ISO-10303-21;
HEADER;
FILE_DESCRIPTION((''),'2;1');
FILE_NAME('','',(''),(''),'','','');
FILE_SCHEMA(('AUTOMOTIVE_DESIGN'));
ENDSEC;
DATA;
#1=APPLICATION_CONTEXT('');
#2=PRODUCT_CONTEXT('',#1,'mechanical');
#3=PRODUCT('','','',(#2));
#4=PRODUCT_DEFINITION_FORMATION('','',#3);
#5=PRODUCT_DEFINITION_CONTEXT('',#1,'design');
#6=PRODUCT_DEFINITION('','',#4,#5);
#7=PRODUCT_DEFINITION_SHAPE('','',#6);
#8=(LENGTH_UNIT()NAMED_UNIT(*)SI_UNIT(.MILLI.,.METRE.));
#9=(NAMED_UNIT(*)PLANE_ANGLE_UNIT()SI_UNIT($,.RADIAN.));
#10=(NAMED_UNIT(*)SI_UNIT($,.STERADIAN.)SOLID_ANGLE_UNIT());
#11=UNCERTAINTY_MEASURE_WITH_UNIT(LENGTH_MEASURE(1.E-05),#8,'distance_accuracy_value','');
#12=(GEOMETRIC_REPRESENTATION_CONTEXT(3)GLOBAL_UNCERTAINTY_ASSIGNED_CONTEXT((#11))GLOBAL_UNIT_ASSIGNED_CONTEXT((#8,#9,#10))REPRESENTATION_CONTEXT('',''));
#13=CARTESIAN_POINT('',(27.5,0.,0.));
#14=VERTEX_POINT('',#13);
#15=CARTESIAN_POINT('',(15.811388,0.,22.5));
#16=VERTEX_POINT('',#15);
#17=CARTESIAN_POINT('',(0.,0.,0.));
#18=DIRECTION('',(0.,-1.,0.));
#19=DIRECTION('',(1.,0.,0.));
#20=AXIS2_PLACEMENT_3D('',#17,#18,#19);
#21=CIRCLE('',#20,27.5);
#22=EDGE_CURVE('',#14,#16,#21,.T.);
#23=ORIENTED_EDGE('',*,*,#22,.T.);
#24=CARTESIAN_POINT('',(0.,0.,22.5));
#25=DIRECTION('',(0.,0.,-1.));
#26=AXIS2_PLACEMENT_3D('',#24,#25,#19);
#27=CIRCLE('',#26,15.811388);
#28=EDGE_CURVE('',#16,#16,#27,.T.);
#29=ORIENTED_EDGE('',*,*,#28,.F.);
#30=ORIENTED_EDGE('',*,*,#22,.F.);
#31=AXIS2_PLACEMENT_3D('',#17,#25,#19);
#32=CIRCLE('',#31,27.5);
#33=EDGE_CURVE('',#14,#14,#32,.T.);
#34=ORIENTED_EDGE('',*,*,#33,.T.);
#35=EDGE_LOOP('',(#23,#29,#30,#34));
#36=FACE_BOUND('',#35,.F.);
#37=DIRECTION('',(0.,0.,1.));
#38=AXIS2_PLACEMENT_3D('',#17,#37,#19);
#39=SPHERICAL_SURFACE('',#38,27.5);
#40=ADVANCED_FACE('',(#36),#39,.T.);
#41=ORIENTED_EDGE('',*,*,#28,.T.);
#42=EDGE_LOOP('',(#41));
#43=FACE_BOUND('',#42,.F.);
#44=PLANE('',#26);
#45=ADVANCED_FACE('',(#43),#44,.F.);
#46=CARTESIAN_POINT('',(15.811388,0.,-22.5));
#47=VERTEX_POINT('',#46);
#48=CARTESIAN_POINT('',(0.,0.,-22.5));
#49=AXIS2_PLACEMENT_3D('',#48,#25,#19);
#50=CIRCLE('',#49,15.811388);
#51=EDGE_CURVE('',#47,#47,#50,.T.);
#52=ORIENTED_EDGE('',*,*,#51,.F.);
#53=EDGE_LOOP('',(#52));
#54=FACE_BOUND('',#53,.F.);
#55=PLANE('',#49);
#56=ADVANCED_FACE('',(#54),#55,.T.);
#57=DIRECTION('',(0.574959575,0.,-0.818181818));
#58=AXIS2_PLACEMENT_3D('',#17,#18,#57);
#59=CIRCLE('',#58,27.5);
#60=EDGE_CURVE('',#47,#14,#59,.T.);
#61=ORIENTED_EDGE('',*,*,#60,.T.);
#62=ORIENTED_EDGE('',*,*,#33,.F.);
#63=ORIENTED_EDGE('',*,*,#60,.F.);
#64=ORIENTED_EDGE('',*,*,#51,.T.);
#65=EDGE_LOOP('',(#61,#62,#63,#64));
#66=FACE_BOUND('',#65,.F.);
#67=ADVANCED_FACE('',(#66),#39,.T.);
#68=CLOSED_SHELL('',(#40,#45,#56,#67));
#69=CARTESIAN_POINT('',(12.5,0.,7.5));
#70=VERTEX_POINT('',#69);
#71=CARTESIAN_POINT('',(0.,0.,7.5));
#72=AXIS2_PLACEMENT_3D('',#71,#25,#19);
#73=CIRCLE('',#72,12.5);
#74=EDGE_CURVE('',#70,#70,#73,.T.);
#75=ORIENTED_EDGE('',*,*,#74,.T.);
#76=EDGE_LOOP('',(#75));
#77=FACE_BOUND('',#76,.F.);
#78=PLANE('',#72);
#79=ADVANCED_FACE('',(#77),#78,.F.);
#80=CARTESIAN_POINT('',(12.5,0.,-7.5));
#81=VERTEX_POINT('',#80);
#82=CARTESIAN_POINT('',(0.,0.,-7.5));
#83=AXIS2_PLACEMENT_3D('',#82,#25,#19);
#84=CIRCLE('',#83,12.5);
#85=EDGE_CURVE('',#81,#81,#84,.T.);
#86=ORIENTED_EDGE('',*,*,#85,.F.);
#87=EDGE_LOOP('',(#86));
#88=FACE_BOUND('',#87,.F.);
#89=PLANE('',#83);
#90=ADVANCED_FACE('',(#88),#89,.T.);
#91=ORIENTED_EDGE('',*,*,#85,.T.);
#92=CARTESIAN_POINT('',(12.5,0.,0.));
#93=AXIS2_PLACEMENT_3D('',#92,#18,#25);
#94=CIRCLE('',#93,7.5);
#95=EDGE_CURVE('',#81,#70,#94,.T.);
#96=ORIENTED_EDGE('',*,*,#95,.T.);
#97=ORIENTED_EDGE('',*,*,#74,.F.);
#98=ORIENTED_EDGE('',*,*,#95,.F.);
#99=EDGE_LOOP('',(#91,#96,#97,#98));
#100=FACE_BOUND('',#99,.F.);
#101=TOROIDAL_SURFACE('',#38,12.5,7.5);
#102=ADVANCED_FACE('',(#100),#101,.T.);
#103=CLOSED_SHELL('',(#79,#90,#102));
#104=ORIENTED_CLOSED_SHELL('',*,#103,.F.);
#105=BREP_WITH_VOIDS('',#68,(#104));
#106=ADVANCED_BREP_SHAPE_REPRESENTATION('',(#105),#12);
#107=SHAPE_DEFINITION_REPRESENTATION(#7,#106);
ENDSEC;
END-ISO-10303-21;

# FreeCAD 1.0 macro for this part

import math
import FreeCAD as App
import Part
import Sketcher
from FreeCAD import Vector
Q = App.Units.Quantity

doc = App.newDocument("Part")
body = doc.addObject("PartDesign::Body", "Body")

sketch1 = doc.addObject("Sketcher::SketchObject", "Sketch")
body.addObject(sketch1)
sketch1.AttachmentSupport = (doc.XZ_Plane, [""])
sketch1.MapMode = "FlatFace"
sketch1.addGeometry(Part.LineSegment(Vector(16, 22, 0), Vector(0, 22, 0)), False)
sketch1.addGeometry(Part.LineSegment(Vector(0, 22, 0), Vector(0, -22, 0)), False)
sketch1.addGeometry(Part.LineSegment(Vector(0, -22, 0), Vector(16, -22, 0)), False)
sketch1.addGeometry(Part.ArcOfCircle(Part.Circle(Vector(0, 0, 0), Vector(0, 0, 1), 28), math.radians(-55), math.radians(0)), False)
sketch1.addGeometry(Part.ArcOfCircle(Part.Circle(Vector(0, 0, 0), Vector(0, 0, 1), 28), math.radians(0), math.radians(55)), False)
sketch1.addConstraint(Sketcher.Constraint("Coincident", 0, 2, 1, 1))
sketch1.addConstraint(Sketcher.Constraint("Coincident", 1, 2, 2, 1))
sketch1.addConstraint(Sketcher.Constraint("Coincident", 2, 2, 3, 1))
sketch1.addConstraint(Sketcher.Constraint("Tangent", 3, 2, 4, 1))
sketch1.addConstraint(Sketcher.Constraint("Coincident", 4, 2, 0, 1))
sketch1.addConstraint(Sketcher.Constraint("Horizontal", 0))
sketch1.addConstraint(Sketcher.Constraint("Vertical", 1))
sketch1.addConstraint(Sketcher.Constraint("Horizontal", 2))
sketch1.addConstraint(Sketcher.Constraint("Coincident", 3, 3, -1, 1))
sketch1.addConstraint(Sketcher.Constraint("Equal", 3, 4))
sketch1.addConstraint(Sketcher.Constraint("Symmetric", 0, 2, 1, 2, -1, 1))
sketch1.addConstraint(Sketcher.Constraint("PointOnObject", 3, 2, -1))
sketch1.addConstraint(Sketcher.Constraint("Radius", 3, Q("27.5 mm")))
sketch1.addConstraint(Sketcher.Constraint("DistanceY", 1, 2, 1, 1, Q("45 mm")))
revolution = doc.addObject("PartDesign::Revolution", "Revolution")
body.addObject(revolution)
revolution.Profile = sketch1
revolution.ReferenceAxis = (sketch1, ["V_Axis"])
revolution.Angle = 360

sketch2 = doc.addObject("Sketcher::SketchObject", "Sketch001")
body.addObject(sketch2)
sketch2.AttachmentSupport = (doc.XZ_Plane, [""])
sketch2.MapMode = "FlatFace"
sketch2.addGeometry(Part.LineSegment(Vector(12, 8, 0), Vector(0, 8, 0)), False)
sketch2.addGeometry(Part.LineSegment(Vector(0, 8, 0), Vector(0, -8, 0)), False)
sketch2.addGeometry(Part.LineSegment(Vector(0, -8, 0), Vector(12, -8, 0)), False)
sketch2.addGeometry(Part.ArcOfCircle(Part.Circle(Vector(12, 0, 0), Vector(0, 0, 1), 8), math.radians(-90), math.radians(90)), False)
sketch2.addConstraint(Sketcher.Constraint("Coincident", 0, 2, 1, 1))
sketch2.addConstraint(Sketcher.Constraint("Coincident", 1, 2, 2, 1))
sketch2.addConstraint(Sketcher.Constraint("Tangent", 2, 2, 3, 1))
sketch2.addConstraint(Sketcher.Constraint("Tangent", 3, 2, 0, 1))
sketch2.addConstraint(Sketcher.Constraint("Horizontal", 0))
sketch2.addConstraint(Sketcher.Constraint("Vertical", 1))
sketch2.addConstraint(Sketcher.Constraint("Horizontal", 2))
sketch2.addConstraint(Sketcher.Constraint("Symmetric", 0, 2, 1, 2, -1, 1))
sketch2.addConstraint(Sketcher.Constraint("Radius", 3, Q("7.5 mm")))
sketch2.addConstraint(Sketcher.Constraint("DistanceX", 0, 2, 0, 1, Q("12.5 mm")))
groove = doc.addObject("PartDesign::Groove", "Groove")
body.addObject(groove)
groove.Profile = sketch2
groove.ReferenceAxis = (sketch2, ["V_Axis"])
groove.Angle = 360

doc.recompute()
